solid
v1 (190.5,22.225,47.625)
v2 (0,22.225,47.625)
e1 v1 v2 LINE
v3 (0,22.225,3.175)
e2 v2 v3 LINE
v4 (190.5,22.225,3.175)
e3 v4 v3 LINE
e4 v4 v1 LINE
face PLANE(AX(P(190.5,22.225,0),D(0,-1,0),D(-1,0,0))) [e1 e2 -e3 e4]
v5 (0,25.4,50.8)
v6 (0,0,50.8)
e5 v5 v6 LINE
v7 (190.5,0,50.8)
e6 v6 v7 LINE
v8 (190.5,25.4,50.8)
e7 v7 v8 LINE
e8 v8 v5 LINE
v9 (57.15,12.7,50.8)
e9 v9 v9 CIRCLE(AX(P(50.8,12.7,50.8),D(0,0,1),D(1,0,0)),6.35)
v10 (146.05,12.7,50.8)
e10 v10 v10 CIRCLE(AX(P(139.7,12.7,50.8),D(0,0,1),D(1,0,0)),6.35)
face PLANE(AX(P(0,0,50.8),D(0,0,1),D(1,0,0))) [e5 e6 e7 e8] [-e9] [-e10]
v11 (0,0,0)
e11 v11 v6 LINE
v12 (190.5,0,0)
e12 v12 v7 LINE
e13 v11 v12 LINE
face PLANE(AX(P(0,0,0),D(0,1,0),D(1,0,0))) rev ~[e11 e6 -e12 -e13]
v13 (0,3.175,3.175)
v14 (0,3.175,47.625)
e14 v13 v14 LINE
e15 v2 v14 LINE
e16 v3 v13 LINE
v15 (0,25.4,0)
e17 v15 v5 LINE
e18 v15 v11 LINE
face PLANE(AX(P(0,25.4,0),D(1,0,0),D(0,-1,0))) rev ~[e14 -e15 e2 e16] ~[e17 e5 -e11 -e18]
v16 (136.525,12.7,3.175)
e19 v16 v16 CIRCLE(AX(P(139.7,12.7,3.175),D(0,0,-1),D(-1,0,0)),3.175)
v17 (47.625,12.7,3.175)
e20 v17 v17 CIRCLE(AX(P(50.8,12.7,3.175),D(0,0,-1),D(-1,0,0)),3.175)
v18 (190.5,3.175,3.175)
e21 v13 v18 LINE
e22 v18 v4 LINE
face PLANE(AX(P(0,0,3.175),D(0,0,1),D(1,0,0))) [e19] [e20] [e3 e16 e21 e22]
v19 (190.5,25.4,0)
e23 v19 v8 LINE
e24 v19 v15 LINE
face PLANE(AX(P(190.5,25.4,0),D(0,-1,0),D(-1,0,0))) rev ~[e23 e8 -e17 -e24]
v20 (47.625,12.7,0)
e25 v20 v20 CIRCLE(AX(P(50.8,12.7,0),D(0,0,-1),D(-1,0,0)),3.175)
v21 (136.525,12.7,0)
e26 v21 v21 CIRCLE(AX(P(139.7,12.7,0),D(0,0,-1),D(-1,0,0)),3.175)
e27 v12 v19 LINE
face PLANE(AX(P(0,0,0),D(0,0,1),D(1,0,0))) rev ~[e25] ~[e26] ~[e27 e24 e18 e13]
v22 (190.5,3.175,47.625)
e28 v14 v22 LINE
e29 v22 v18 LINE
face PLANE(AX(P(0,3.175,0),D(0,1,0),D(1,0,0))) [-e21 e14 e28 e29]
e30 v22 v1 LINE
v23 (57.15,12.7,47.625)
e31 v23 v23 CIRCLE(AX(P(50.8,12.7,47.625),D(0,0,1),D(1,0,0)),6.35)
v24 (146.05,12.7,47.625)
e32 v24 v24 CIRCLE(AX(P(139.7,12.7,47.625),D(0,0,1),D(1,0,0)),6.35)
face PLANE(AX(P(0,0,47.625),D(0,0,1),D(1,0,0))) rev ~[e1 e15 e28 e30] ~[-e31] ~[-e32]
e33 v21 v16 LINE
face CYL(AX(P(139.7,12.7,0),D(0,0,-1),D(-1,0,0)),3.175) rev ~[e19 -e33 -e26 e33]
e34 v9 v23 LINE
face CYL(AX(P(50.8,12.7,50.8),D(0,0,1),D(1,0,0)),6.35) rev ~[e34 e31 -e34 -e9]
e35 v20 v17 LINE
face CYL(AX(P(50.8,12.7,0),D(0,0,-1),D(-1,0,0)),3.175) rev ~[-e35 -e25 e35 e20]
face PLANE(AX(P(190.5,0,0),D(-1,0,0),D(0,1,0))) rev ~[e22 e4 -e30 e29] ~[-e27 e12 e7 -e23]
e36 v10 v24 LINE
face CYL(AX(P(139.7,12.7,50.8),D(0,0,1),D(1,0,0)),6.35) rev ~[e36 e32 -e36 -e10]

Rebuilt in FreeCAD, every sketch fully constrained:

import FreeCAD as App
import Part
import Sketcher
Q = App.Units.Quantity


def faces_at(feature, points):
    """Names of the faces that lie closest to the given points."""
    faces = feature.Shape.Faces
    near = lambda p: min(range(len(faces)), key=lambda i: faces[i].distToShape(Part.Vertex(*p))[0])
    return sorted({f"Face{near(p) + 1}" for p in points})

doc = App.newDocument("Part")
params = doc.addObject("Spreadsheet::Sheet", "Params")
for row, (alias, value) in enumerate([
    ("sketch1_height", "1 in"),
    ("sketch1_width", "7.5 in"),
    ("pad1_length", "2 in"),
    ("thickness_wall", "0.125 in"),
    ("sketch2_diameter", "0.25 in"),
    ("sketch3_diameter", "0.5 in"),
    ("sketch3_diameter2", "0.25 in"),
], start=1):
    params.set(f"A{row}", alias)
    params.set(f"B{row}", "=" + value)
    params.setAlias(f"B{row}", alias)

body = doc.addObject("PartDesign::Body", "Body")

# Sketch on XY plane
sketch1 = body.newObject("Sketcher::SketchObject", "Sketch")
sketch1.AttachmentSupport = (doc.getObject("XY_Plane"), [""])
sketch1.MapMode = "FlatFace"
sketch1.addGeometry([
    Part.LineSegment(App.Vector(0, 25, 0), App.Vector(0, 0, 0)),
    Part.LineSegment(App.Vector(0, 0, 0), App.Vector(190, 0, 0)),
    Part.LineSegment(App.Vector(190, 0, 0), App.Vector(190, 25, 0)),
    Part.LineSegment(App.Vector(190, 25, 0), App.Vector(0, 25, 0)),
], False)
sketch1.addConstraint([
    Sketcher.Constraint("Coincident", 0, 2, 1, 1),
    Sketcher.Constraint("Coincident", 1, 2, 2, 1),
    Sketcher.Constraint("Coincident", 2, 2, 3, 1),
    Sketcher.Constraint("Coincident", 3, 2, 0, 1),
    Sketcher.Constraint("Vertical", 0),
    Sketcher.Constraint("Horizontal", 1),
    Sketcher.Constraint("Vertical", 2),
    Sketcher.Constraint("Horizontal", 3),
    Sketcher.Constraint("Coincident", 0, 2, -1, 1),
    Sketcher.Constraint("DistanceY", 0, 2, 0, 1, Q("1 in")),
    Sketcher.Constraint("DistanceX", 1, 1, 1, 2, Q("7.5 in")),
])
sketch1.setExpression("Constraints[9]", "Params.sketch1_height")
sketch1.setExpression("Constraints[10]", "Params.sketch1_width")
pad1 = body.newObject("PartDesign::Pad", "Pad")
pad1.Profile = sketch1
pad1.setExpression("Length", "Params.pad1_length")
doc.recompute()

thickness = body.newObject("PartDesign::Thickness", "Thickness")
thickness.Base = (pad1, faces_at(pad1, [(0, 16.933, 33.867), (190.5, 8.467, 16.933)]))
thickness.setExpression("Value", "Params.thickness_wall")
thickness.Reversed = True
thickness.Join = "Intersection"

# Sketch on XY plane
sketch2 = body.newObject("Sketcher::SketchObject", "Sketch001")
sketch2.AttachmentSupport = (doc.getObject("XY_Plane"), [""])
sketch2.MapMode = "FlatFace"
sketch2.addGeometry([
    Part.Circle(App.Vector(139.7, 12.7, 0), App.Vector(0, 0, 1), 3.2),
    Part.Circle(App.Vector(50.8, 12.7, 0), App.Vector(0, 0, 1), 3.2),
], False)
sketch2.addConstraint([
    Sketcher.Constraint("Equal", 0, 1),
    Sketcher.Constraint("Horizontal", 0, 3, 1, 3),
    Sketcher.Constraint("Diameter", 0, Q("0.25 in")),
    Sketcher.Constraint("DistanceX", -1, 1, 1, 3, Q("2 in")),
    Sketcher.Constraint("DistanceY", -1, 1, 0, 3, Q("0.5 in")),
    Sketcher.Constraint("DistanceX", -1, 1, 0, 3, Q("5.5 in")),
])
sketch2.setExpression("Constraints[2]", "Params.sketch2_diameter")
pocket1 = body.newObject("PartDesign::Pocket", "Pocket")
pocket1.Profile = sketch2
pocket1.Type = "ThroughAll"
pocket1.Reversed = True

# Sketch on XY plane
sketch3 = body.newObject("Sketcher::SketchObject", "Sketch002")
sketch3.AttachmentSupport = (doc.getObject("XY_Plane"), [""])
sketch3.MapMode = "FlatFace"
sketch3.AttachmentOffset = App.Placement(App.Vector(0, 0, 2 * 25.4), App.Rotation())
sketch3.addGeometry([
    Part.Circle(App.Vector(50.8, 12.7, 0), App.Vector(0, 0, 1), 6.3),
    Part.Circle(App.Vector(50.8, 12.7, 0), App.Vector(0, 0, 1), 3.2),
    Part.Circle(App.Vector(139.7, 12.7, 0), App.Vector(0, 0, 1), 6.3),
    Part.Circle(App.Vector(139.7, 12.7, 0), App.Vector(0, 0, 1), 3.2),
], False)
sketch3.addConstraint([
    Sketcher.Constraint("Coincident", 1, 3, 0, 3),
    Sketcher.Constraint("Coincident", 3, 3, 2, 3),
    Sketcher.Constraint("Equal", 0, 2),
    Sketcher.Constraint("Equal", 1, 3),
    Sketcher.Constraint("Horizontal", 1, 3, 2, 3),
    Sketcher.Constraint("Diameter", 0, Q("0.5 in")),
    Sketcher.Constraint("DistanceY", -1, 1, 0, 3, Q("0.5 in")),
    Sketcher.Constraint("Diameter", 1, Q("0.25 in")),
    Sketcher.Constraint("DistanceX", -1, 1, 0, 3, Q("2 in")),
    Sketcher.Constraint("DistanceX", -1, 1, 2, 3, Q("5.5 in")),
])
sketch3.setExpression("Constraints[5]", "Params.sketch3_diameter")
sketch3.setExpression("Constraints[7]", "Params.sketch3_diameter2")
pocket2 = body.newObject("PartDesign::Pocket", "Pocket001")
pocket2.Profile = sketch3
pocket2.Type = "UpToFirst"

doc.recompute()
